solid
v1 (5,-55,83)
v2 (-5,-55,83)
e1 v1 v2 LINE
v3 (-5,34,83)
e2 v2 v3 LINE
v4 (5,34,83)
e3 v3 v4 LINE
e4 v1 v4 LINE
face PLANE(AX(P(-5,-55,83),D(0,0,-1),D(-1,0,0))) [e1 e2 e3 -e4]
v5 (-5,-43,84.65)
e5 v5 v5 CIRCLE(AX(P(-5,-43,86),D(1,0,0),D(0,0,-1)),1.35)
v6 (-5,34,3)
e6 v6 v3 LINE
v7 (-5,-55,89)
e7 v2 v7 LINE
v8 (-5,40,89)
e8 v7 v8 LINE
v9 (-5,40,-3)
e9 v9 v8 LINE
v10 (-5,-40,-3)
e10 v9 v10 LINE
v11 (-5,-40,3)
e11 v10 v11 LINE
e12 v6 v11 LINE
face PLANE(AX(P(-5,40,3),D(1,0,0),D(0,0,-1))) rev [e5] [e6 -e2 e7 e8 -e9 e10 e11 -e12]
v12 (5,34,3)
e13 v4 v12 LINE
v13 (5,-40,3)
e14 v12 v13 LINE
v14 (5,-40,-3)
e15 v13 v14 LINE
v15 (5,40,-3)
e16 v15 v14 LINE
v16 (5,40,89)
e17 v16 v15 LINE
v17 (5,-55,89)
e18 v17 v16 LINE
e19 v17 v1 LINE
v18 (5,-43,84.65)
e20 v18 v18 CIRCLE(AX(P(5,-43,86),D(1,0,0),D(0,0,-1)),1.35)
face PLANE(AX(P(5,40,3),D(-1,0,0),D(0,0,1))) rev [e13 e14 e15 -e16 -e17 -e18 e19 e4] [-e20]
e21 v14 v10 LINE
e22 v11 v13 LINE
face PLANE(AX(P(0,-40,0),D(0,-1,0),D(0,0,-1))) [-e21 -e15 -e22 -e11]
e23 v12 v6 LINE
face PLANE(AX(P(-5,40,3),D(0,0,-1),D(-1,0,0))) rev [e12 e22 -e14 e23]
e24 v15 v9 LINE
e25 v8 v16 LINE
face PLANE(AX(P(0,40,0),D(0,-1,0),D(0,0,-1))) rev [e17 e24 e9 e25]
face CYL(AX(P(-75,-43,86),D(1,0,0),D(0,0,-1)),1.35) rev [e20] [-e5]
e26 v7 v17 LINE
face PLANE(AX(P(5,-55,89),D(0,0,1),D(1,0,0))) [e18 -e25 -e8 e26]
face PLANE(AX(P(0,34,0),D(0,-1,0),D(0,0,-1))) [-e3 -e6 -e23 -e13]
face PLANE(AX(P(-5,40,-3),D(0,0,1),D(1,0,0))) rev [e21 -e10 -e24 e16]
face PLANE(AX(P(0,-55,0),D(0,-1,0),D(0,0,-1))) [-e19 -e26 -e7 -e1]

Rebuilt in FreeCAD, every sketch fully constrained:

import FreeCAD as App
import Part
import Sketcher
from FreeCAD import Vector
Q = App.Units.Quantity

doc = App.newDocument("Part")
body = doc.addObject("PartDesign::Body", "Body")

# Sketch on XZ plane
sketch1 = body.newObject("Sketcher::SketchObject", "Sketch")
sketch1.AttachmentSupport = (doc.getObject("XZ_Plane"), [""])
sketch1.MapMode = "FlatFace"
sketch1.addGeometry([
    Part.LineSegment(Vector(-5, -3, 0), Vector(-5, 3, 0)),
    Part.LineSegment(Vector(-5, 3, 0), Vector(5, 3, 0)),
    Part.LineSegment(Vector(5, 3, 0), Vector(5, -3, 0)),
    Part.LineSegment(Vector(5, -3, 0), Vector(-5, -3, 0)),
], False)
sketch1.addConstraint([
    Sketcher.Constraint("Coincident", 0, 2, 1, 1),
    Sketcher.Constraint("Coincident", 1, 2, 2, 1),
    Sketcher.Constraint("Coincident", 2, 2, 3, 1),
    Sketcher.Constraint("Coincident", 3, 2, 0, 1),
    Sketcher.Constraint("Vertical", 0),
    Sketcher.Constraint("Horizontal", 1),
    Sketcher.Constraint("Vertical", 2),
    Sketcher.Constraint("Horizontal", 3),
    Sketcher.Constraint("Symmetric", 0, 2, 2, 2, -1, 1),
    Sketcher.Constraint("DistanceX", 1, 1, 1, 2, Q("10 mm")),
    Sketcher.Constraint("DistanceY", 0, 1, 0, 2, Q("6 mm")),
])
pad1 = body.newObject("PartDesign::Pad", "Pad")
pad1.Profile = sketch1
pad1.Length = 80
pad1.Midplane = True

# Sketch on XZ plane
sketch2 = body.newObject("Sketcher::SketchObject", "Sketch001")
sketch2.AttachmentSupport = (doc.getObject("XZ_Plane"), [""])
sketch2.MapMode = "FlatFace"
sketch2.AttachmentOffset = App.Placement(Vector(0, 0, -40), App.Rotation())
sketch2.addGeometry([
    Part.LineSegment(Vector(-5, 3, 0), Vector(-5, 83, 0)),
    Part.LineSegment(Vector(-5, 83, 0), Vector(5, 83, 0)),
    Part.LineSegment(Vector(5, 83, 0), Vector(5, 3, 0)),
    Part.LineSegment(Vector(5, 3, 0), Vector(-5, 3, 0)),
], False)
sketch2.addConstraint([
    Sketcher.Constraint("Coincident", 0, 2, 1, 1),
    Sketcher.Constraint("Coincident", 1, 2, 2, 1),
    Sketcher.Constraint("Coincident", 2, 2, 3, 1),
    Sketcher.Constraint("Coincident", 3, 2, 0, 1),
    Sketcher.Constraint("Vertical", 0),
    Sketcher.Constraint("Horizontal", 1),
    Sketcher.Constraint("Vertical", 2),
    Sketcher.Constraint("Horizontal", 3),
    Sketcher.Constraint("DistanceX", 1, 1, 1, 2, Q("10 mm")),
    Sketcher.Constraint("DistanceY", 0, 1, 0, 2, Q("80 mm")),
    Sketcher.Constraint("DistanceX", 0, 2, -1, 1, Q("5 mm")),
    Sketcher.Constraint("DistanceY", -1, 1, 0, 2, Q("83 mm")),
])
pad2 = body.newObject("PartDesign::Pad", "Pad001")
pad2.Profile = sketch2
pad2.Length = 6

# Sketch on XZ plane
sketch3 = body.newObject("Sketcher::SketchObject", "Sketch002")
sketch3.AttachmentSupport = (doc.getObject("XZ_Plane"), [""])
sketch3.MapMode = "FlatFace"
sketch3.AttachmentOffset = App.Placement(Vector(0, 0, -40), App.Rotation())
sketch3.addGeometry([
    Part.LineSegment(Vector(-5, 83, 0), Vector(-5, 89, 0)),
    Part.LineSegment(Vector(-5, 89, 0), Vector(5, 89, 0)),
    Part.LineSegment(Vector(5, 89, 0), Vector(5, 83, 0)),
    Part.LineSegment(Vector(5, 83, 0), Vector(-5, 83, 0)),
], False)
sketch3.addConstraint([
    Sketcher.Constraint("Coincident", 0, 2, 1, 1),
    Sketcher.Constraint("Coincident", 1, 2, 2, 1),
    Sketcher.Constraint("Coincident", 2, 2, 3, 1),
    Sketcher.Constraint("Coincident", 3, 2, 0, 1),
    Sketcher.Constraint("Vertical", 0),
    Sketcher.Constraint("Horizontal", 1),
    Sketcher.Constraint("Vertical", 2),
    Sketcher.Constraint("Horizontal", 3),
    Sketcher.Constraint("DistanceX", 1, 1, 1, 2, Q("10 mm")),
    Sketcher.Constraint("DistanceY", 0, 1, 0, 2, Q("6 mm")),
    Sketcher.Constraint("DistanceX", 0, 2, -1, 1, Q("5 mm")),
    Sketcher.Constraint("DistanceY", -1, 1, 0, 2, Q("89 mm")),
])
pad3 = body.newObject("PartDesign::Pad", "Pad002")
pad3.Profile = sketch3
pad3.Length = 95

# Sketch on YZ plane
sketch4 = body.newObject("Sketcher::SketchObject", "Sketch003")
sketch4.AttachmentSupport = (doc.getObject("YZ_Plane"), [""])
sketch4.MapMode = "FlatFace"
sketch4.AttachmentOffset = App.Placement(Vector(0, 0, 5), App.Rotation())
sketch4.addGeometry(Part.Circle(Vector(-43, 86, 0), Vector(0, 0, 1), 1.4), False)
sketch4.addConstraint([
    Sketcher.Constraint("Diameter", 0, Q("2.7 mm")),
    Sketcher.Constraint("DistanceX", 0, 3, -1, 1, Q("43 mm")),
    Sketcher.Constraint("DistanceY", -1, 1, 0, 3, Q("86 mm")),
])
pocket1 = body.newObject("PartDesign::Pocket", "Pocket")
pocket1.Profile = sketch4
pocket1.Length = 80

doc.recompute()
